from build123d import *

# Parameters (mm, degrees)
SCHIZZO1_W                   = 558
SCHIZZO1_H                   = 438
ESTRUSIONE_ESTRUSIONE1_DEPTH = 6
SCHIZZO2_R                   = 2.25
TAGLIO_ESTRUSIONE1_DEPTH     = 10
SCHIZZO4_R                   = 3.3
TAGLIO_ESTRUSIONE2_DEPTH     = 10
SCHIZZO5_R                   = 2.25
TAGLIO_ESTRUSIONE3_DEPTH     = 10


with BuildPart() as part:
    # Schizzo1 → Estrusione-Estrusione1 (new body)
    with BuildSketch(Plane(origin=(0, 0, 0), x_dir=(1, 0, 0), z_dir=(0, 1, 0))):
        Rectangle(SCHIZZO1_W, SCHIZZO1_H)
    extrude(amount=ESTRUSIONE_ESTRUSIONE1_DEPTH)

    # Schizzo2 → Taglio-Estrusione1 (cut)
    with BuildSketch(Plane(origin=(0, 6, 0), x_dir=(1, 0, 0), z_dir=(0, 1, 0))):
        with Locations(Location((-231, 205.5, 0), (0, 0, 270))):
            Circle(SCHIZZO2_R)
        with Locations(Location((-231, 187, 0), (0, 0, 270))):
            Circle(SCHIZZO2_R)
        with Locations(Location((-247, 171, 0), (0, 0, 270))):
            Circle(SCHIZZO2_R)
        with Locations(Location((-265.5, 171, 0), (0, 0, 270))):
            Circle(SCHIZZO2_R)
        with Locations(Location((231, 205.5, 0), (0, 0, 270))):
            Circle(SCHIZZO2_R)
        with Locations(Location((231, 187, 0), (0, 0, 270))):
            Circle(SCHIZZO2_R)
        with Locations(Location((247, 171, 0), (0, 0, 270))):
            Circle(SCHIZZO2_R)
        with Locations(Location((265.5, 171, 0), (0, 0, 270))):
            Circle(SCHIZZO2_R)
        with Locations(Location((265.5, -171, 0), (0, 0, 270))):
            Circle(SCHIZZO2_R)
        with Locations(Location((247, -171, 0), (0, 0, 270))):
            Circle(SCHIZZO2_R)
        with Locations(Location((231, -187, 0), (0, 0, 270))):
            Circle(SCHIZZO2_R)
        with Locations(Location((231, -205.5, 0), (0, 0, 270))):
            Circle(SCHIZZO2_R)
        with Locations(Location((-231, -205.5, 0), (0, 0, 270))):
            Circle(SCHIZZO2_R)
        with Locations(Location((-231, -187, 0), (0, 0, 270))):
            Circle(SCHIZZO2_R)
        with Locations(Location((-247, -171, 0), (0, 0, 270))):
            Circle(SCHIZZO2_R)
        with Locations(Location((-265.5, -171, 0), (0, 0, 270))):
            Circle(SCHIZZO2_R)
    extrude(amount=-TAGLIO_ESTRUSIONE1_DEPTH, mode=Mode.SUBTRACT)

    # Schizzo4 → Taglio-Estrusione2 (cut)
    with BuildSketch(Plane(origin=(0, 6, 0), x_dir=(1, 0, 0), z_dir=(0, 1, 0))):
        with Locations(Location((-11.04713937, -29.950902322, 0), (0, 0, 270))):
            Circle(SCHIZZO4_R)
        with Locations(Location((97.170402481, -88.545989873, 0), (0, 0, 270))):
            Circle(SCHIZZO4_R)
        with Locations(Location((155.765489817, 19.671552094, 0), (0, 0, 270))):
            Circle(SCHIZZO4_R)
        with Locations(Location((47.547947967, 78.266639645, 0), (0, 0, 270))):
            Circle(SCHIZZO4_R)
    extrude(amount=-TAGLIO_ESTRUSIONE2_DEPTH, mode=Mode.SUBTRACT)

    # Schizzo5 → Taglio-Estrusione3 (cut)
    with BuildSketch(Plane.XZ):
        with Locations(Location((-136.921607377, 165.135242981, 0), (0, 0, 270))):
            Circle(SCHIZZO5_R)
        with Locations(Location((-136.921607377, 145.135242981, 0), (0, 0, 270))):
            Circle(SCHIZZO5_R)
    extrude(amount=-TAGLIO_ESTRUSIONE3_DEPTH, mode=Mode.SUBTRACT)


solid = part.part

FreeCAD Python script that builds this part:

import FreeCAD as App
import Part
import Sketcher

V = App.Vector


def add_polygon(sketch, points):
    """Adds a closed chain of lines whose ends are joined by coincident constraints."""
    first, n = sketch.GeometryCount, len(points)
    for a, b in zip(points, points[1:] + points[:1]):
        sketch.addGeometry(Part.LineSegment(App.Vector(*a, 0), App.Vector(*b, 0)), False)
    for i in range(n):
        sketch.addConstraint(Sketcher.Constraint("Coincident", first + i, 2, first + (i + 1) % n, 1))

doc = App.newDocument("Part")
params = doc.addObject("Spreadsheet::Sheet", "Params")
for row, (alias, value) in enumerate([
    ("sketch1_width", "558 mm"),
    ("sketch1_height", "438 mm"),
    ("pad1_length", "6 mm"),
    ("sketch2_diameter", "4.5 mm"),
    ("pocket1_length", "10 mm"),
    ("sketch3_diameter", "6.6 mm"),
    ("pocket2_length", "10 mm"),
    ("sketch4_diameter", "4.5 mm"),
    ("pocket3_length", "10 mm"),
], start=1):
    params.set(f"A{row}", alias)
    params.set(f"B{row}", "=" + value)
    params.setAlias(f"B{row}", alias)

body = doc.addObject("PartDesign::Body", "Body")

# Sketch on XZ plane
sketch1 = body.newObject("Sketcher::SketchObject", "Sketch")
sketch1.AttachmentSupport = (doc.getObject("XZ_Plane"), [""])
sketch1.MapMode = "FlatFace"
add_polygon(sketch1, [(-279, -219), (-279, 219), (279, 219), (279, -219)])  # lines 0-3
sketch1.addConstraint([
    Sketcher.Constraint("Vertical", 0),
    Sketcher.Constraint("Horizontal", 1),
    Sketcher.Constraint("Vertical", 2),
    Sketcher.Constraint("Horizontal", 3),
    Sketcher.Constraint("Symmetric", 0, 2, 2, 2, -1, 1),
    Sketcher.Constraint("DistanceX", 1, 1, 1, 2, 558.0),
    Sketcher.Constraint("DistanceY", 0, 1, 0, 2, 438.0),
])
sketch1.setExpression("Constraints[9]", "Params.sketch1_width")
sketch1.setExpression("Constraints[10]", "Params.sketch1_height")
pad1 = body.newObject("PartDesign::Pad", "Pad")
pad1.Profile = sketch1
pad1.setExpression("Length", "Params.pad1_length")
pad1.Reversed = True

# Sketch on XZ plane
sketch2 = body.newObject("Sketcher::SketchObject", "Sketch001")
sketch2.AttachmentSupport = (doc.getObject("XZ_Plane"), [""])
sketch2.MapMode = "FlatFace"
sketch2.AttachmentOffset = App.Placement(V(0, 0, -6), App.Rotation())
sketch2.addGeometry([
    Part.Circle(V(-231, -205.5, 0), V(0, 0, 1), 2.25),  # 0
    Part.Circle(V(-231, -187, 0), V(0, 0, 1), 2.25),  # 1
    Part.Circle(V(-247, -171, 0), V(0, 0, 1), 2.25),  # 2
    Part.Circle(V(-265.5, -171, 0), V(0, 0, 1), 2.25),  # 3
    Part.Circle(V(231, -205.5, 0), V(0, 0, 1), 2.25),  # 4
    Part.Circle(V(231, -187, 0), V(0, 0, 1), 2.25),  # 5
    Part.Circle(V(247, -171, 0), V(0, 0, 1), 2.25),  # 6
    Part.Circle(V(265.5, -171, 0), V(0, 0, 1), 2.25),  # 7
    Part.Circle(V(265.5, 171, 0), V(0, 0, 1), 2.25),  # 8
    Part.Circle(V(247, 171, 0), V(0, 0, 1), 2.25),  # 9
    Part.Circle(V(231, 187, 0), V(0, 0, 1), 2.25),  # 10
    Part.Circle(V(231, 205.5, 0), V(0, 0, 1), 2.25),  # 11
    Part.Circle(V(-231, 205.5, 0), V(0, 0, 1), 2.25),  # 12
    Part.Circle(V(-231, 187, 0), V(0, 0, 1), 2.25),  # 13
    Part.Circle(V(-247, 171, 0), V(0, 0, 1), 2.25),  # 14
    Part.Circle(V(-265.5, 171, 0), V(0, 0, 1), 2.25),  # 15
], False)
sketch2.addConstraint([
    Sketcher.Constraint("Equal", 0, 1),
    Sketcher.Constraint("Equal", 1, 2),
    Sketcher.Constraint("Equal", 2, 3),
    Sketcher.Constraint("Equal", 3, 4),
    Sketcher.Constraint("Equal", 4, 5),
    Sketcher.Constraint("Equal", 5, 6),
    Sketcher.Constraint("Equal", 6, 7),
    Sketcher.Constraint("Equal", 7, 8),
    Sketcher.Constraint("Equal", 8, 9),
    Sketcher.Constraint("Equal", 9, 10),
    Sketcher.Constraint("Equal", 10, 11),
    Sketcher.Constraint("Equal", 11, 12),
    Sketcher.Constraint("Equal", 12, 13),
    Sketcher.Constraint("Equal", 13, 14),
    Sketcher.Constraint("Equal", 14, 15),
    Sketcher.Constraint("Symmetric", 3, 3, 8, 3, -1, 1),
    Sketcher.Constraint("Symmetric", 2, 3, 9, 3, -1, 1),
    Sketcher.Constraint("Symmetric", 1, 3, 10, 3, -1, 1),
    Sketcher.Constraint("Symmetric", 0, 3, 11, 3, -1, 1),
    Sketcher.Constraint("Symmetric", 4, 3, 12, 3, -1, 1),
    Sketcher.Constraint("Symmetric", 5, 3, 13, 3, -1, 1),
    Sketcher.Constraint("Symmetric", 6, 3, 14, 3, -1, 1),
    Sketcher.Constraint("Symmetric", 7, 3, 15, 3, -1, 1),
    Sketcher.Constraint("Symmetric", 0, 3, 4, 3, -2),
    Sketcher.Constraint("Symmetric", 1, 3, 5, 3, -2),
    Sketcher.Constraint("Symmetric", 2, 3, 6, 3, -2),
    Sketcher.Constraint("Symmetric", 3, 3, 7, 3, -2),
    Sketcher.Constraint("Horizontal", 2, 3, 3, 3),
    Sketcher.Constraint("Vertical", 0, 3, 1, 3),
    Sketcher.Constraint("Diameter", 0, 4.5),
    Sketcher.Constraint("DistanceX", 0, 3, -1, 1, 231.0),
    Sketcher.Constraint("DistanceY", 1, 3, -1, 1, 187.0),
    Sketcher.Constraint("DistanceX", 2, 3, -1, 1, 247.0),
    Sketcher.Constraint("DistanceY", 2, 3, -1, 1, 171.0),
    Sketcher.Constraint("DistanceY", 0, 3, 12, 3, 411.0),
    Sketcher.Constraint("DistanceX", 3, 3, -1, 1, 265.5),
])
sketch2.setExpression("Constraints[29]", "Params.sketch2_diameter")
pocket1 = body.newObject("PartDesign::Pocket", "Pocket")
pocket1.Profile = sketch2
pocket1.setExpression("Length", "Params.pocket1_length")
pocket1.Reversed = True

# Sketch on XZ plane
sketch3 = body.newObject("Sketcher::SketchObject", "Sketch002")
sketch3.AttachmentSupport = (doc.getObject("XZ_Plane"), [""])
sketch3.MapMode = "FlatFace"
sketch3.AttachmentOffset = App.Placement(V(0, 0, -6), App.Rotation())
sketch3.addGeometry([
    Part.Circle(V(-11.047139, 29.950902, 0), V(0, 0, 1), 3.3),
    Part.Circle(V(97.170402, 88.54599, 0), V(0, 0, 1), 3.3),
    Part.Circle(V(155.76549, -19.671552, 0), V(0, 0, 1), 3.3),
    Part.Circle(V(47.547948, -78.26664, 0), V(0, 0, 1), 3.3),
], False)
sketch3.addConstraint([
    Sketcher.Constraint("Equal", 0, 1),
    Sketcher.Constraint("Equal", 1, 2),
    Sketcher.Constraint("Equal", 2, 3),
    Sketcher.Constraint("Diameter", 0, 6.6),
    Sketcher.Constraint("DistanceX", 0, 3, -1, 1, 11.047139),
    Sketcher.Constraint("DistanceY", -1, 1, 1, 3, 88.54599),
    Sketcher.Constraint("DistanceX", -1, 1, 2, 3, 155.76549),
    Sketcher.Constraint("DistanceY", 3, 3, -1, 1, 78.26664),
    Sketcher.Constraint("DistanceX", 0, 3, 1, 3, 108.217542),
    Sketcher.Constraint("DistanceY", 2, 3, 1, 3, 108.217542),
    Sketcher.Constraint("DistanceX", 3, 3, 2, 3, 108.217542),
    Sketcher.Constraint("DistanceY", 3, 3, 0, 3, 108.217542),
])
sketch3.setExpression("Constraints[3]", "Params.sketch3_diameter")
pocket2 = body.newObject("PartDesign::Pocket", "Pocket001")
pocket2.Profile = sketch3
pocket2.setExpression("Length", "Params.pocket2_length")
pocket2.Reversed = True

# Sketch on XZ plane
sketch4 = body.newObject("Sketcher::SketchObject", "Sketch003")
sketch4.AttachmentSupport = (doc.getObject("XZ_Plane"), [""])
sketch4.MapMode = "FlatFace"
sketch4.addGeometry([
    Part.Circle(V(-136.921607, 165.135243, 0), V(0, 0, 1), 2.25),
    Part.Circle(V(-136.921607, 145.135243, 0), V(0, 0, 1), 2.25),
], False)
sketch4.addConstraint([
    Sketcher.Constraint("Equal", 0, 1),
    Sketcher.Constraint("Vertical", 0, 3, 1, 3),
    Sketcher.Constraint("Diameter", 0, 4.5),
    Sketcher.Constraint("DistanceY", 1, 3, 0, 3, 20.0),
    Sketcher.Constraint("DistanceX", 0, 3, -1, 1, 136.921607),
    Sketcher.Constraint("DistanceY", -1, 1, 0, 3, 165.135243),
])
sketch4.setExpression("Constraints[2]", "Params.sketch4_diameter")
pocket3 = body.newObject("PartDesign::Pocket", "Pocket002")
pocket3.Profile = sketch4
pocket3.setExpression("Length", "Params.pocket3_length")

doc.recompute()
